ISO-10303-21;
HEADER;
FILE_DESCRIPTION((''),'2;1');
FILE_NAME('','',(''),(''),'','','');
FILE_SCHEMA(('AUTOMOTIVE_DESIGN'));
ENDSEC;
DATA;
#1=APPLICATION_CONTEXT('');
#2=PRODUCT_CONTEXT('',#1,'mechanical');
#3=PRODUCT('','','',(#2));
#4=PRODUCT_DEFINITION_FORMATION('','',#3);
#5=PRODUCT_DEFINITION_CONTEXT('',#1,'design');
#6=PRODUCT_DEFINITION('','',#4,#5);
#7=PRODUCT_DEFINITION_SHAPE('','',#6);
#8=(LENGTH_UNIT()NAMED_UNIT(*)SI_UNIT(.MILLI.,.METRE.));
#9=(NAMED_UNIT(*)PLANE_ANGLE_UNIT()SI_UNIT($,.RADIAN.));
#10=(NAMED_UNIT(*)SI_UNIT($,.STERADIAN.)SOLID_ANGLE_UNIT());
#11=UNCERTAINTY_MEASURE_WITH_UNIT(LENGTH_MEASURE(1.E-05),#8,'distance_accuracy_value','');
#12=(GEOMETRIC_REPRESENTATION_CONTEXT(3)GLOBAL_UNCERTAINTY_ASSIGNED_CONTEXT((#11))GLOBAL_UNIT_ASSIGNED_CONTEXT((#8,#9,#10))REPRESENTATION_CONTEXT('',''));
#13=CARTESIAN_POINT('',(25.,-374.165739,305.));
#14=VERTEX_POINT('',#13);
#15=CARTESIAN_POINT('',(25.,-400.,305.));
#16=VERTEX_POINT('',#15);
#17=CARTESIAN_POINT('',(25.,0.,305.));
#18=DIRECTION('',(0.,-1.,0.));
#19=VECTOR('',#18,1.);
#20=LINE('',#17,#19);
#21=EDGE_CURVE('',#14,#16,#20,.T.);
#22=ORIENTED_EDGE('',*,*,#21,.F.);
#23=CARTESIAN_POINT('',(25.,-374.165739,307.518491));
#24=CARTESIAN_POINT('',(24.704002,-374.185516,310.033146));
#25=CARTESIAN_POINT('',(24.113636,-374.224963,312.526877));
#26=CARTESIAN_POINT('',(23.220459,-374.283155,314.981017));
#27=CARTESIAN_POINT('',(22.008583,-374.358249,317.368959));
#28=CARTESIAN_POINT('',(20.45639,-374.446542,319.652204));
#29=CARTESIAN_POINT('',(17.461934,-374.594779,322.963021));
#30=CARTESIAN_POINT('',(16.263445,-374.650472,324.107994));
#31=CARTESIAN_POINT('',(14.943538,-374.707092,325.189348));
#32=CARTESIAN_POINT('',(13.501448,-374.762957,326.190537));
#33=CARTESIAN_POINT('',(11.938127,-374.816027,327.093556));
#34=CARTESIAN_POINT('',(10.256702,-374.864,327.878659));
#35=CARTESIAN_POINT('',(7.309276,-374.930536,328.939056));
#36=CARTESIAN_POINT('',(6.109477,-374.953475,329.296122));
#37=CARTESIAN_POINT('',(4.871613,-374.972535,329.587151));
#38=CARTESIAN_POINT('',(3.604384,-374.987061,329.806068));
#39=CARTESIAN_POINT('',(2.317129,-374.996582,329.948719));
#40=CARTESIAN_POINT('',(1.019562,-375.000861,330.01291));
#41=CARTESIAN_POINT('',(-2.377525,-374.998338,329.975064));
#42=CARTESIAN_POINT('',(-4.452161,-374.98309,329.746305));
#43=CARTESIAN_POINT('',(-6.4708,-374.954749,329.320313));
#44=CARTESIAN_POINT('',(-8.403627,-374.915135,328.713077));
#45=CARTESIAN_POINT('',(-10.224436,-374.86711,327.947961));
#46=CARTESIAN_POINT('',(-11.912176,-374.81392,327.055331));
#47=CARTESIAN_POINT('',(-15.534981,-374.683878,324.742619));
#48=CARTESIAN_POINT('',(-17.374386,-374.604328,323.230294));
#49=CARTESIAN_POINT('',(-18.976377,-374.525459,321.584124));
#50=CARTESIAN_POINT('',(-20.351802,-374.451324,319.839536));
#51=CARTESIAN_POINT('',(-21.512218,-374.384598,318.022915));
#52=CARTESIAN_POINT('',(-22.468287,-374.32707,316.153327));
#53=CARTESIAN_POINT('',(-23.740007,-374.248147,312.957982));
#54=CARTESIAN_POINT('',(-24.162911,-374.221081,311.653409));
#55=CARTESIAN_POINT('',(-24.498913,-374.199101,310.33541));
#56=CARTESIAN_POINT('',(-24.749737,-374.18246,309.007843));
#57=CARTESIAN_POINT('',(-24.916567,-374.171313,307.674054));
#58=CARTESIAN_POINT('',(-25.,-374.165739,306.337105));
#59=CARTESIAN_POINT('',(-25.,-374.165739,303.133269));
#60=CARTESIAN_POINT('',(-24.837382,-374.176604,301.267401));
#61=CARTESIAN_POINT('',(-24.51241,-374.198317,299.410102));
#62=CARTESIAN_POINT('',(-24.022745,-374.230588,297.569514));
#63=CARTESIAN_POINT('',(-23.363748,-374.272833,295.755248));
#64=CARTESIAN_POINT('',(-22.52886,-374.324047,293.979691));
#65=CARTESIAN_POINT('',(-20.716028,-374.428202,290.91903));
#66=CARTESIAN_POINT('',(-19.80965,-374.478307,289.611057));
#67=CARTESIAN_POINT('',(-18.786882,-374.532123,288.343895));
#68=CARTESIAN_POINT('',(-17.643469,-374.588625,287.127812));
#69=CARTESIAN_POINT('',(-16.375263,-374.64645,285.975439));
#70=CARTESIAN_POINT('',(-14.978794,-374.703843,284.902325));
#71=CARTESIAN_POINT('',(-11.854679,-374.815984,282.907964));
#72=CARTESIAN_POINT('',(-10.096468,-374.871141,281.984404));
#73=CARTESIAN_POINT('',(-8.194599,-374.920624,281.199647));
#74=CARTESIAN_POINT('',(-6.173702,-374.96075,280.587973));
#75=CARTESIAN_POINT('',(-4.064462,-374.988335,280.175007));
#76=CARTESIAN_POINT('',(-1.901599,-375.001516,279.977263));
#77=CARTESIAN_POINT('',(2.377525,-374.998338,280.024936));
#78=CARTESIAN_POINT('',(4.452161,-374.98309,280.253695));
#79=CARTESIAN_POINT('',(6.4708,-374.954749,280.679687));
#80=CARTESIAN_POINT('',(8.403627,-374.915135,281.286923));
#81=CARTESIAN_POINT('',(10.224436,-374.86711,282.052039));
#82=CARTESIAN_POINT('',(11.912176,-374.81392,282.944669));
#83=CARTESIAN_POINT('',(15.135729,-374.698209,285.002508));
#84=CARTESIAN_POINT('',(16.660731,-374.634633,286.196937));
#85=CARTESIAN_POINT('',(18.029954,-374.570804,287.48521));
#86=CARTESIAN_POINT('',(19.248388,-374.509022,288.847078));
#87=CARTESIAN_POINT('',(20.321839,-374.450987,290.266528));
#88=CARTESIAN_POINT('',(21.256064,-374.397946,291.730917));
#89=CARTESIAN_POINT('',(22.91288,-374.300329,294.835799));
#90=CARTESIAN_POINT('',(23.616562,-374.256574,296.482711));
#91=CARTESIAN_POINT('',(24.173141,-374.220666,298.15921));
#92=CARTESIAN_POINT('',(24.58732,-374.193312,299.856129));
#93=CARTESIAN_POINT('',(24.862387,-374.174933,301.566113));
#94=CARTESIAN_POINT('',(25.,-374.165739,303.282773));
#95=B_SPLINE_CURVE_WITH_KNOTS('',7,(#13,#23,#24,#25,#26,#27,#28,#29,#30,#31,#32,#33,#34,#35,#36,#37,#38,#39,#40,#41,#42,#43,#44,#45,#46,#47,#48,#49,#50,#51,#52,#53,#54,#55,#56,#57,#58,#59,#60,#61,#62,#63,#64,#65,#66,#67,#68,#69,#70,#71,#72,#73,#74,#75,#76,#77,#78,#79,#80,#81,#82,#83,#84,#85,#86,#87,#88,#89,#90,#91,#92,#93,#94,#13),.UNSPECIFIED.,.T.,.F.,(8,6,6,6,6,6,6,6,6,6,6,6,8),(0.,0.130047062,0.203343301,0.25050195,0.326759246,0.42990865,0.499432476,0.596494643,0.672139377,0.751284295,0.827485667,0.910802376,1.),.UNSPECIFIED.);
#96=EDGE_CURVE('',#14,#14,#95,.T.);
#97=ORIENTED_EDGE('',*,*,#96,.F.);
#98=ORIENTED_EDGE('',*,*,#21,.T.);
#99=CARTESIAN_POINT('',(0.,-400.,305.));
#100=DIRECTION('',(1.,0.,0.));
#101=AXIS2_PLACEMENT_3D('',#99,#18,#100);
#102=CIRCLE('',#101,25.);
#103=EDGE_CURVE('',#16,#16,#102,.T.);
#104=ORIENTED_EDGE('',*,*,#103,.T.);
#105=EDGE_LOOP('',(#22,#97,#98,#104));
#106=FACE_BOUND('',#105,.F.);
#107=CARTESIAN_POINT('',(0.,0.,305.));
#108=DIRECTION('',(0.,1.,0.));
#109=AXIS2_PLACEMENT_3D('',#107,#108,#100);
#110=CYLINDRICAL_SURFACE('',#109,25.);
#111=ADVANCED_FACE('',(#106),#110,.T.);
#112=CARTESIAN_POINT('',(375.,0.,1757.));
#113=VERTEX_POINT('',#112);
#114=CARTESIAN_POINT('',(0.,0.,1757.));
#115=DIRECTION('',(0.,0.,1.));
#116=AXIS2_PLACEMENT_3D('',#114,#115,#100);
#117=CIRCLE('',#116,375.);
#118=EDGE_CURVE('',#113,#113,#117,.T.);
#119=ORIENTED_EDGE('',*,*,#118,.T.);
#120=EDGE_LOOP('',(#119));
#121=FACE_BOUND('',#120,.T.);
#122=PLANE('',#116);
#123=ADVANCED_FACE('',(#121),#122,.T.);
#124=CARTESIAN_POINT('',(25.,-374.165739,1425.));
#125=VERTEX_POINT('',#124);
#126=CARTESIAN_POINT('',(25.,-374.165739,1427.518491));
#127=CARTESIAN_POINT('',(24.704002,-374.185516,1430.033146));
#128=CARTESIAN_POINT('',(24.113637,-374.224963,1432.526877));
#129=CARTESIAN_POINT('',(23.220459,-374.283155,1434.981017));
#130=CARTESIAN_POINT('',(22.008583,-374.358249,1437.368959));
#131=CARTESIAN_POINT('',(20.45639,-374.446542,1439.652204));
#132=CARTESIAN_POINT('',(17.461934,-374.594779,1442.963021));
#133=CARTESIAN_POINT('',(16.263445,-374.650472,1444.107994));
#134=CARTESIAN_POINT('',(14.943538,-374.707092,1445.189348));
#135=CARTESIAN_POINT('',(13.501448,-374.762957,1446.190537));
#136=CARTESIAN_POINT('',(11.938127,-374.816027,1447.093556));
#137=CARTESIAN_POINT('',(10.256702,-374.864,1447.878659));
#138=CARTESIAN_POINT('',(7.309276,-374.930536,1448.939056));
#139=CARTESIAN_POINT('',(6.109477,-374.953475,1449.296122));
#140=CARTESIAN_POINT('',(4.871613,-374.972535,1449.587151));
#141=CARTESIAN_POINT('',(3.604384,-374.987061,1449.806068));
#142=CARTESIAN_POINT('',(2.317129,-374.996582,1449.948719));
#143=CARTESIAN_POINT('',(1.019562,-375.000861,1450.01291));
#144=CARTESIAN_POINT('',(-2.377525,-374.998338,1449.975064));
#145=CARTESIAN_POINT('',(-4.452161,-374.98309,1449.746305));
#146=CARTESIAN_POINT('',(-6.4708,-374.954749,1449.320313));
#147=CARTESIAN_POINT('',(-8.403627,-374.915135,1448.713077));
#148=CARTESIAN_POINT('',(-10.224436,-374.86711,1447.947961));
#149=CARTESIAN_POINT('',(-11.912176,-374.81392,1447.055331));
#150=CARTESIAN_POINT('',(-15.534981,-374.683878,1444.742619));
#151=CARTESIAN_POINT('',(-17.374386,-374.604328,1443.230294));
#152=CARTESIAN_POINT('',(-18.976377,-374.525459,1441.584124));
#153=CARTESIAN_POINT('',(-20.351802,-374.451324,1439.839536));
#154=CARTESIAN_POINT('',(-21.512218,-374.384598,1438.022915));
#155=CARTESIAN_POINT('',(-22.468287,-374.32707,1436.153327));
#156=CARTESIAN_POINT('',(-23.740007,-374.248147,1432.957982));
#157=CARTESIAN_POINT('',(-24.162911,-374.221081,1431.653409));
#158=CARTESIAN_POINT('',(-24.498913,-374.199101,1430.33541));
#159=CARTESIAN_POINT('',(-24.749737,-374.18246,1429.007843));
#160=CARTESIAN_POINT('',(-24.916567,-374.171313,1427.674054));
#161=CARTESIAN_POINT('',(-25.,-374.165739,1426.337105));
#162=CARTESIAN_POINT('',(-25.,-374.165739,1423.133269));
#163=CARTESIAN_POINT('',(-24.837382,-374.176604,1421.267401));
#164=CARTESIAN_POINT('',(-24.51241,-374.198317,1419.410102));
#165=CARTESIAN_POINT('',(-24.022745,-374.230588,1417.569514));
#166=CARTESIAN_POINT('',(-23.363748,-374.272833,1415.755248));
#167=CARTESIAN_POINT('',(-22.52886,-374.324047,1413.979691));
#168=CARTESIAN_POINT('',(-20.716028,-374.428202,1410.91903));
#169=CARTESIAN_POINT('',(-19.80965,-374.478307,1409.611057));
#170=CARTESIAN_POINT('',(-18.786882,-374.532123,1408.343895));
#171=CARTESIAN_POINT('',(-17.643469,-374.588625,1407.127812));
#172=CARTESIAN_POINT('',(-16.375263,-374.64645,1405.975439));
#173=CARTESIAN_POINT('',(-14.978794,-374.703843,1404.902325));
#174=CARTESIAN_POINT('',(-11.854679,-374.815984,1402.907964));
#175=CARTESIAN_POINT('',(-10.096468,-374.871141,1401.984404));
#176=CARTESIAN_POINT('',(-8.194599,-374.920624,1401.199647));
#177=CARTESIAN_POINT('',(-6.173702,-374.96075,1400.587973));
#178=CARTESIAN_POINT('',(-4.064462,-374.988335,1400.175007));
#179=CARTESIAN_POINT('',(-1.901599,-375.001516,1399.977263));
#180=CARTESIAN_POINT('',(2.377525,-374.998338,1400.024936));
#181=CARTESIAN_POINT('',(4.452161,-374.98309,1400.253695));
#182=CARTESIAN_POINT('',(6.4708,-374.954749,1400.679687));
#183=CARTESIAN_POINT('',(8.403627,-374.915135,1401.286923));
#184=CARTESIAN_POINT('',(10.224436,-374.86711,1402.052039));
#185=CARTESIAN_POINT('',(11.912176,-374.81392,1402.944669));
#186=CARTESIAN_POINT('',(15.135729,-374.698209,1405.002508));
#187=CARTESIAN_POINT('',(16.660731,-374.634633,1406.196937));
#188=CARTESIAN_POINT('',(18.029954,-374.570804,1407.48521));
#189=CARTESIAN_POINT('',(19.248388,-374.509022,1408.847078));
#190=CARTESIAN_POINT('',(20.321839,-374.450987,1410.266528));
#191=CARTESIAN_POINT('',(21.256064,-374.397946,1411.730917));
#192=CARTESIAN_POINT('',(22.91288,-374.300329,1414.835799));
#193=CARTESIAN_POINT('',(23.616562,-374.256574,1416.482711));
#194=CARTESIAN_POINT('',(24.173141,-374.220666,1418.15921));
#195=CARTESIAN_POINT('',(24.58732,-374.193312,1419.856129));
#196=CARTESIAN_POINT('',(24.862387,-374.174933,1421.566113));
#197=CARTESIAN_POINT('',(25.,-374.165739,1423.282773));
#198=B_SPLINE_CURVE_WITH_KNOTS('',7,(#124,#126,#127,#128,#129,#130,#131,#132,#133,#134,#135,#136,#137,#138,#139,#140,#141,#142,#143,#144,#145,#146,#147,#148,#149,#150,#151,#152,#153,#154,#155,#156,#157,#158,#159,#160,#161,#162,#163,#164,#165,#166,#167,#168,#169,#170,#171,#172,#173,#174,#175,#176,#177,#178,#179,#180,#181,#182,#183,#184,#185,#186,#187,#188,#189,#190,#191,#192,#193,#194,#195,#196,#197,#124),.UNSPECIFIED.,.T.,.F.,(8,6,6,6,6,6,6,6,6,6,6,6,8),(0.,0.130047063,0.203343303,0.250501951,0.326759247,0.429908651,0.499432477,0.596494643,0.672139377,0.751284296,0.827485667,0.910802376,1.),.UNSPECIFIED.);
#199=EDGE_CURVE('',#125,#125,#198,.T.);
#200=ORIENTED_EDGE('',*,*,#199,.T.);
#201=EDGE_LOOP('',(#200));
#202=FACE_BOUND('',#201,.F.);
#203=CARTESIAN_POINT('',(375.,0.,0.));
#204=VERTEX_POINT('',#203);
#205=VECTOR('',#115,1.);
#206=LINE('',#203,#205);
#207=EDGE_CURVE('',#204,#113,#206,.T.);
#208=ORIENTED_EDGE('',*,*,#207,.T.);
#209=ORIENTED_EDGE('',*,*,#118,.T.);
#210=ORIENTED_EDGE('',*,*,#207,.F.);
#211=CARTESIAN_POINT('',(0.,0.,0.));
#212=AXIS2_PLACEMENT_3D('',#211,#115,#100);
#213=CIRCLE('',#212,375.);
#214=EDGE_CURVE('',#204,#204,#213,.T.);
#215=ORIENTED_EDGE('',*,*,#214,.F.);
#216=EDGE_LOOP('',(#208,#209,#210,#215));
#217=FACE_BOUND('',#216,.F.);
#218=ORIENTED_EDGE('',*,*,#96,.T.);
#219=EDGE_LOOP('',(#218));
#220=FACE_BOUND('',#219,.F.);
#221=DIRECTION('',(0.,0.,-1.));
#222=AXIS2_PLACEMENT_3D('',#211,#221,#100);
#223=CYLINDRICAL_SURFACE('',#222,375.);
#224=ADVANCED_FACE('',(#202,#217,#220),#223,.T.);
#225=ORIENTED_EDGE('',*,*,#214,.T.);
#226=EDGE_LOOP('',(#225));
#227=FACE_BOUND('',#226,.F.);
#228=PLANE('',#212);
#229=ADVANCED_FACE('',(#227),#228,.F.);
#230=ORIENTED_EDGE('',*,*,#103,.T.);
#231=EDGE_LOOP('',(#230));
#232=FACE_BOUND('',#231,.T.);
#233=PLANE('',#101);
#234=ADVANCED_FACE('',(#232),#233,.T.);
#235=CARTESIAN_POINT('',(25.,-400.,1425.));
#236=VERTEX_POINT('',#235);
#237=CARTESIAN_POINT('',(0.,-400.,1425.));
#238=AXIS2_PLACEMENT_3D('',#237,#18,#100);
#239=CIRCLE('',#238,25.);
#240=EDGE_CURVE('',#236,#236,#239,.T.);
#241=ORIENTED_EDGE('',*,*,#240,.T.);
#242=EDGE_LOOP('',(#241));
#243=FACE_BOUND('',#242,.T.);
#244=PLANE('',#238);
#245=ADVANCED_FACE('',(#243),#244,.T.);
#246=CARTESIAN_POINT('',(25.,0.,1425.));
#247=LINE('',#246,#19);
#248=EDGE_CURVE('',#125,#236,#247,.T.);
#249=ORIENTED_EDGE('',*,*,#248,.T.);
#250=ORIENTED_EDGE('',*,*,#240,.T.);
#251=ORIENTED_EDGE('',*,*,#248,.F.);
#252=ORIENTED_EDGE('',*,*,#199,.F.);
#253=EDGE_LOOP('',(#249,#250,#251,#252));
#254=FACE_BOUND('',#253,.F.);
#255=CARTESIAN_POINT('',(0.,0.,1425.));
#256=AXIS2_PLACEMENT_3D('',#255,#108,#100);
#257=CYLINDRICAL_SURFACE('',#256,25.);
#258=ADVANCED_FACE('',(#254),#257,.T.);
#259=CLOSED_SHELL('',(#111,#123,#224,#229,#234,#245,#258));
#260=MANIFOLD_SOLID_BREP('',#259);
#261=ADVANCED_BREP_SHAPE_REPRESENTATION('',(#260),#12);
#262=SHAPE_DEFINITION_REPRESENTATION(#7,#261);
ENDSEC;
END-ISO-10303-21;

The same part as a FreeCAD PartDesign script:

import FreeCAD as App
import Part
import Sketcher
from FreeCAD import Vector
Q = App.Units.Quantity

doc = App.newDocument("Part")
body = doc.addObject("PartDesign::Body", "Body")

sketch1 = body.newObject("Sketcher::SketchObject", "Sketch")
sketch1.AttachmentSupport = (doc.getObject("XY_Plane"), [""])
sketch1.MapMode = "FlatFace"
sketch1.addGeometry(Part.Circle(Vector(0, 0, 0), Vector(0, 0, 1), 375), False)
sketch1.addConstraint([
    Sketcher.Constraint("Coincident", 0, 3, -1, 1),
    Sketcher.Constraint("Diameter", 0, Q("750 mm")),
])
pad1 = body.newObject("PartDesign::Pad", "Pad")
pad1.Profile = sketch1
pad1.Length = 1757

sketch2 = body.newObject("Sketcher::SketchObject", "Sketch001")
sketch2.AttachmentSupport = (doc.getObject("XZ_Plane"), [""])
sketch2.MapMode = "FlatFace"
sketch2.addGeometry([
    Part.Circle(Vector(0, 305, 0), Vector(0, 0, 1), 25),
    Part.Circle(Vector(0, 1425, 0), Vector(0, 0, 1), 25),
], False)
sketch2.addConstraint([
    Sketcher.Constraint("Equal", 0, 1),
    Sketcher.Constraint("PointOnObject", 0, 3, -2),
    Sketcher.Constraint("PointOnObject", 1, 3, -2),
    Sketcher.Constraint("Diameter", 0, Q("50 mm")),
    Sketcher.Constraint("DistanceY", -1, 1, 0, 3, Q("305 mm")),
    Sketcher.Constraint("DistanceY", -1, 1, 1, 3, Q("1425 mm")),
])
pad2 = body.newObject("PartDesign::Pad", "Pad001")
pad2.Profile = sketch2
pad2.Length = 400

doc.recompute()
